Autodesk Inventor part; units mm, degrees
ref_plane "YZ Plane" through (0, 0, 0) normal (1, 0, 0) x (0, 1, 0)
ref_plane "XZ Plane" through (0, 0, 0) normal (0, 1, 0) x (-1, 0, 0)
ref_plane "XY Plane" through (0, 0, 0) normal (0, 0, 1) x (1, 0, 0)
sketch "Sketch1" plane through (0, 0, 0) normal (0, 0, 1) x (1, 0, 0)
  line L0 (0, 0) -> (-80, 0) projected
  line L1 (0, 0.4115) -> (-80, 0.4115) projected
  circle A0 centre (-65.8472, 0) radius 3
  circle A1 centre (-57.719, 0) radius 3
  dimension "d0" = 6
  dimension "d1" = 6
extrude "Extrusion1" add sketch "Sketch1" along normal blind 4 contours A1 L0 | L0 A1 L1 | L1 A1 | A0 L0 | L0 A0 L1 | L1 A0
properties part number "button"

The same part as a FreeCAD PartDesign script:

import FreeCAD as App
import Part
import Sketcher

V = App.Vector
Q = App.Units.Quantity

doc = App.newDocument("Part")
body = doc.addObject("PartDesign::Body", "Body")
body.AllowCompound = True

# Sketch on XY plane
sketch1 = body.newObject("Sketcher::SketchObject", "Sketch")
sketch1.AttachmentSupport = (doc.getObject("XY_Plane"), [""])
sketch1.MapMode = "FlatFace"
sketch1.addGeometry([
    Part.Circle(V(-57.7, 0, 0), V(0, 0, 1), 3),
    Part.Circle(V(-65.8, 0, 0), V(0, 0, 1), 3),
], False)
sketch1.addConstraint([
    Sketcher.Constraint("Equal", 0, 1),
    Sketcher.Constraint("PointOnObject", 0, 3, -1),
    Sketcher.Constraint("PointOnObject", 1, 3, -1),
    Sketcher.Constraint("Diameter", 0, Q("6 mm")),
    Sketcher.Constraint("DistanceX", 0, 3, -1, 1, Q("57.719 mm")),
    Sketcher.Constraint("DistanceX", 1, 3, -1, 1, Q("65.8472 mm")),
])
pad1 = body.newObject("PartDesign::Pad", "Pad")
pad1.Profile = sketch1
pad1.Length = 4

doc.recompute()
